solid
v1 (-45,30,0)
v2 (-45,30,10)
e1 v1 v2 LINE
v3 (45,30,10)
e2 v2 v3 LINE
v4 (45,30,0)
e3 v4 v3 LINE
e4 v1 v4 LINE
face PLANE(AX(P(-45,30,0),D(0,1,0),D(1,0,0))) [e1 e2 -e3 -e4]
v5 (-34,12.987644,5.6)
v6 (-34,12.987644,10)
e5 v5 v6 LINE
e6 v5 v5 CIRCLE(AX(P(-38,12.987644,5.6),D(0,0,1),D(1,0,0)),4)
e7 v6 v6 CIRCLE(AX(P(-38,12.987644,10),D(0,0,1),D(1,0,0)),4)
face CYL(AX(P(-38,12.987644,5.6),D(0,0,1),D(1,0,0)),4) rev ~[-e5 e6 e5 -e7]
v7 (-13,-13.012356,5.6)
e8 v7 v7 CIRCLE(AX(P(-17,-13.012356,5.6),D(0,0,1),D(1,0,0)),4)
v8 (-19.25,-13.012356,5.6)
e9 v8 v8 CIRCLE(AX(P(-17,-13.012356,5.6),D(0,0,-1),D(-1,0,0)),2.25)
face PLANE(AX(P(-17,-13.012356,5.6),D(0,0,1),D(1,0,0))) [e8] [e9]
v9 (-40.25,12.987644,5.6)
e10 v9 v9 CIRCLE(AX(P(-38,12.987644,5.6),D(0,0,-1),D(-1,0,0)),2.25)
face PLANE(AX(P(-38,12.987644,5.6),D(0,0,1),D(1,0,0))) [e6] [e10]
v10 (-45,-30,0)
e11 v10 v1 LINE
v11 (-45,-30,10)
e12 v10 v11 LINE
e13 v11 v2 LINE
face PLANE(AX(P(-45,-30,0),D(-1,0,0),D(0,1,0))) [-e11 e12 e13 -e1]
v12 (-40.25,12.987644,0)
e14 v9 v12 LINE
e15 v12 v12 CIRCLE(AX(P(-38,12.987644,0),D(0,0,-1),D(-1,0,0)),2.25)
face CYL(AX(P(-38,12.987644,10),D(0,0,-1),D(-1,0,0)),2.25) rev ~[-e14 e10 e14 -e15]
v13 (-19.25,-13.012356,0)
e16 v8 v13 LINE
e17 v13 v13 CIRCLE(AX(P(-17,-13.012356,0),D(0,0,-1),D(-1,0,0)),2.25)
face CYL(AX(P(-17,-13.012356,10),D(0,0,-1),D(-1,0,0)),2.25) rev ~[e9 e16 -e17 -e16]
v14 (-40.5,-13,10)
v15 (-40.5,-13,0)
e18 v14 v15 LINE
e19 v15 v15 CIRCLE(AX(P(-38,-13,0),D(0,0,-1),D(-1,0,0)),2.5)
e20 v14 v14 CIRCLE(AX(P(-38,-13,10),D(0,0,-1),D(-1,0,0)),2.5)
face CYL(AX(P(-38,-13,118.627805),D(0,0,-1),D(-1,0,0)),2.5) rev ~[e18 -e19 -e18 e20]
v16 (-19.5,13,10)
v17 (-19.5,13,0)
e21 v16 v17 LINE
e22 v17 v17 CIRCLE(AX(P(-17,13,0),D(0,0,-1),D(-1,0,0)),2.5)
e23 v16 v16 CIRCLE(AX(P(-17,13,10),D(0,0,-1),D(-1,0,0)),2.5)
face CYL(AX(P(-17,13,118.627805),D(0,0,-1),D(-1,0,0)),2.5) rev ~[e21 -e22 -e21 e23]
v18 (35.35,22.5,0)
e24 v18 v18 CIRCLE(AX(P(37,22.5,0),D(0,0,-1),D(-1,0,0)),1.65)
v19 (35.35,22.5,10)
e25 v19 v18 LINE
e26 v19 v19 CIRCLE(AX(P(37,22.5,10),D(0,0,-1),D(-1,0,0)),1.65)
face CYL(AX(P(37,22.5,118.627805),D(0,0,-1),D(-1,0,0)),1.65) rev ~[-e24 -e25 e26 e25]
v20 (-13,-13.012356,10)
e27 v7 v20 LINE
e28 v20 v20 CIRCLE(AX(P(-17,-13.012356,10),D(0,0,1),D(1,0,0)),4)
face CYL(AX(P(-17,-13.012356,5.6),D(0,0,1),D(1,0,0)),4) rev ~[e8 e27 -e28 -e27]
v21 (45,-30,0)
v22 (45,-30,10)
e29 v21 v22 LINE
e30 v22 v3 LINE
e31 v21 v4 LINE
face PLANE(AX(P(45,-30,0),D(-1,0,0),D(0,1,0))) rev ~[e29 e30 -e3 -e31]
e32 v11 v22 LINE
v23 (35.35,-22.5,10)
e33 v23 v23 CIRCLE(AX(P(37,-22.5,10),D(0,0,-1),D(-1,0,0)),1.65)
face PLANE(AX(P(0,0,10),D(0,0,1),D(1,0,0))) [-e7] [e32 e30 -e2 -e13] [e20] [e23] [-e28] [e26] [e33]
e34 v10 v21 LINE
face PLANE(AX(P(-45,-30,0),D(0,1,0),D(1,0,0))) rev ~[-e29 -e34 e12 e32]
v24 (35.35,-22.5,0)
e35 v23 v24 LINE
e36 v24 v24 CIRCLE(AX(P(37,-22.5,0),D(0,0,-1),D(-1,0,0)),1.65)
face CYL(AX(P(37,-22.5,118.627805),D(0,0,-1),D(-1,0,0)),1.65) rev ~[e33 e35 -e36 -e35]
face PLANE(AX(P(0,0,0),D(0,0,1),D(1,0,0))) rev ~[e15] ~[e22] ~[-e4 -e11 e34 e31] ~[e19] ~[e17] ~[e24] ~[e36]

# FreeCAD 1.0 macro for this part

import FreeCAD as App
import Part
import Sketcher

V = App.Vector
Q = App.Units.Quantity

doc = App.newDocument("Part")
params = doc.addObject("Spreadsheet::Sheet", "Params")
for row, (alias, value) in enumerate([
    ("sketch1_width", "90 mm"),
    ("sketch1_height", "60 mm"),
    ("pad1_length", "10 mm"),
    ("sketch2_diameter", "4.5 mm"),
    ("hole_diameter", "4.5 mm"),
    ("hole_cbore_diameter", "8 mm"),
    ("hole_cbore_depth", "4.4 mm"),
    ("sketch3_diameter", "5 mm"),
    ("hole2_diameter", "5 mm"),
    ("sketch4_diameter", "3.3 mm"),
    ("hole3_diameter", "3.3 mm"),
], start=1):
    params.set(f"A{row}", alias)
    params.set(f"B{row}", "=" + value)
    params.setAlias(f"B{row}", alias)

body = doc.addObject("PartDesign::Body", "Body")

# Sketch on XY plane
sketch1 = body.newObject("Sketcher::SketchObject", "Sketch")
sketch1.AttachmentSupport = (doc.getObject("XY_Plane"), [""])
sketch1.MapMode = "FlatFace"
sketch1.addGeometry([
    Part.LineSegment(V(-45, 30, 0), V(-45, -30, 0)),
    Part.LineSegment(V(-45, -30, 0), V(45, -30, 0)),
    Part.LineSegment(V(45, -30, 0), V(45, 30, 0)),
    Part.LineSegment(V(45, 30, 0), V(-45, 30, 0)),
], False)
sketch1.addConstraint([
    Sketcher.Constraint("Coincident", 0, 2, 1, 1),
    Sketcher.Constraint("Coincident", 1, 2, 2, 1),
    Sketcher.Constraint("Coincident", 2, 2, 3, 1),
    Sketcher.Constraint("Coincident", 3, 2, 0, 1),
    Sketcher.Constraint("Vertical", 0),
    Sketcher.Constraint("Horizontal", 1),
    Sketcher.Constraint("Vertical", 2),
    Sketcher.Constraint("Horizontal", 3),
    Sketcher.Constraint("Symmetric", 0, 2, 2, 2, -1, 1),
    Sketcher.Constraint("DistanceX", 1, 1, 1, 2, Q("90 mm")),
    Sketcher.Constraint("DistanceY", 0, 2, 0, 1, Q("60 mm")),
])
sketch1.setExpression("Constraints[9]", "Params.sketch1_width")
sketch1.setExpression("Constraints[10]", "Params.sketch1_height")
pad1 = body.newObject("PartDesign::Pad", "Pad")
pad1.Profile = sketch1
pad1.setExpression("Length", "Params.pad1_length")

# Sketch on XY plane
sketch2 = body.newObject("Sketcher::SketchObject", "Sketch001")
sketch2.AttachmentSupport = (doc.getObject("XY_Plane"), [""])
sketch2.MapMode = "FlatFace"
sketch2.AttachmentOffset = App.Placement(V(0, 0, 10), App.Rotation())
sketch2.addGeometry([
    Part.Circle(V(-38, 13, 0), V(0, 0, 1), 2.2),
    Part.Circle(V(-17, -13, 0), V(0, 0, 1), 2.2),
], False)
sketch2.addConstraint([
    Sketcher.Constraint("Equal", 0, 1),
    Sketcher.Constraint("Diameter", 0, Q("4.5 mm")),
    Sketcher.Constraint("DistanceX", 0, 3, -1, 1, Q("38 mm")),
    Sketcher.Constraint("DistanceX", 1, 3, -1, 1, Q("17 mm")),
    Sketcher.Constraint("DistanceY", 1, 3, 0, 3, Q("26 mm")),
    Sketcher.Constraint("DistanceY", -1, 1, 0, 3, Q("12.987644 mm")),
])
sketch2.setExpression("Constraints[1]", "Params.sketch2_diameter")
doc.recompute()
hole = body.newObject("PartDesign::Hole", "Hole")
hole.Profile = sketch2
hole.ThreadType = "None"
hole.setExpression("Diameter", "Params.hole_diameter")
hole.DepthType = "ThroughAll"
hole.HoleCutType = "Counterbore"
hole.setExpression("HoleCutDiameter", "Params.hole_cbore_diameter")
hole.setExpression("HoleCutDepth", "Params.hole_cbore_depth")

# Sketch on XY plane
sketch3 = body.newObject("Sketcher::SketchObject", "Sketch002")
sketch3.AttachmentSupport = (doc.getObject("XY_Plane"), [""])
sketch3.MapMode = "FlatFace"
sketch3.AttachmentOffset = App.Placement(V(0, 0, 10), App.Rotation())
sketch3.addGeometry([
    Part.Circle(V(-38, -13, 0), V(0, 0, 1), 2.5),
    Part.Circle(V(-17, 13, 0), V(0, 0, 1), 2.5),
], False)
sketch3.addConstraint([
    Sketcher.Constraint("Equal", 0, 1),
    Sketcher.Constraint("Diameter", 0, Q("5 mm")),
    Sketcher.Constraint("DistanceX", 0, 3, -1, 1, Q("38 mm")),
    Sketcher.Constraint("DistanceY", 0, 3, -1, 1, Q("13 mm")),
    Sketcher.Constraint("DistanceX", 1, 3, -1, 1, Q("17 mm")),
    Sketcher.Constraint("DistanceY", -1, 1, 1, 3, Q("13 mm")),
])
sketch3.setExpression("Constraints[1]", "Params.sketch3_diameter")
doc.recompute()
hole2 = body.newObject("PartDesign::Hole", "Hole001")
hole2.Profile = sketch3
hole2.ThreadType = "None"
hole2.setExpression("Diameter", "Params.hole2_diameter")
hole2.DepthType = "ThroughAll"

# Sketch on XY plane
sketch4 = body.newObject("Sketcher::SketchObject", "Sketch003")
sketch4.AttachmentSupport = (doc.getObject("XY_Plane"), [""])
sketch4.MapMode = "FlatFace"
sketch4.AttachmentOffset = App.Placement(V(0, 0, 10), App.Rotation())
sketch4.addGeometry([
    Part.Circle(V(37, 22.5, 0), V(0, 0, 1), 1.6),
    Part.Circle(V(37, -22.5, 0), V(0, 0, 1), 1.6),
], False)
sketch4.addConstraint([
    Sketcher.Constraint("Equal", 0, 1),
    Sketcher.Constraint("Symmetric", 0, 3, 1, 3, -1),
    Sketcher.Constraint("Diameter", 0, Q("3.3 mm")),
    Sketcher.Constraint("DistanceX", -1, 1, 0, 3, Q("37 mm")),
    Sketcher.Constraint("DistanceY", 1, 3, 0, 3, Q("45 mm")),
])
sketch4.setExpression("Constraints[2]", "Params.sketch4_diameter")
doc.recompute()
hole3 = body.newObject("PartDesign::Hole", "Hole002")
hole3.Profile = sketch4
hole3.ThreadType = "None"
hole3.setExpression("Diameter", "Params.hole3_diameter")
hole3.DepthType = "ThroughAll"

doc.recompute()
